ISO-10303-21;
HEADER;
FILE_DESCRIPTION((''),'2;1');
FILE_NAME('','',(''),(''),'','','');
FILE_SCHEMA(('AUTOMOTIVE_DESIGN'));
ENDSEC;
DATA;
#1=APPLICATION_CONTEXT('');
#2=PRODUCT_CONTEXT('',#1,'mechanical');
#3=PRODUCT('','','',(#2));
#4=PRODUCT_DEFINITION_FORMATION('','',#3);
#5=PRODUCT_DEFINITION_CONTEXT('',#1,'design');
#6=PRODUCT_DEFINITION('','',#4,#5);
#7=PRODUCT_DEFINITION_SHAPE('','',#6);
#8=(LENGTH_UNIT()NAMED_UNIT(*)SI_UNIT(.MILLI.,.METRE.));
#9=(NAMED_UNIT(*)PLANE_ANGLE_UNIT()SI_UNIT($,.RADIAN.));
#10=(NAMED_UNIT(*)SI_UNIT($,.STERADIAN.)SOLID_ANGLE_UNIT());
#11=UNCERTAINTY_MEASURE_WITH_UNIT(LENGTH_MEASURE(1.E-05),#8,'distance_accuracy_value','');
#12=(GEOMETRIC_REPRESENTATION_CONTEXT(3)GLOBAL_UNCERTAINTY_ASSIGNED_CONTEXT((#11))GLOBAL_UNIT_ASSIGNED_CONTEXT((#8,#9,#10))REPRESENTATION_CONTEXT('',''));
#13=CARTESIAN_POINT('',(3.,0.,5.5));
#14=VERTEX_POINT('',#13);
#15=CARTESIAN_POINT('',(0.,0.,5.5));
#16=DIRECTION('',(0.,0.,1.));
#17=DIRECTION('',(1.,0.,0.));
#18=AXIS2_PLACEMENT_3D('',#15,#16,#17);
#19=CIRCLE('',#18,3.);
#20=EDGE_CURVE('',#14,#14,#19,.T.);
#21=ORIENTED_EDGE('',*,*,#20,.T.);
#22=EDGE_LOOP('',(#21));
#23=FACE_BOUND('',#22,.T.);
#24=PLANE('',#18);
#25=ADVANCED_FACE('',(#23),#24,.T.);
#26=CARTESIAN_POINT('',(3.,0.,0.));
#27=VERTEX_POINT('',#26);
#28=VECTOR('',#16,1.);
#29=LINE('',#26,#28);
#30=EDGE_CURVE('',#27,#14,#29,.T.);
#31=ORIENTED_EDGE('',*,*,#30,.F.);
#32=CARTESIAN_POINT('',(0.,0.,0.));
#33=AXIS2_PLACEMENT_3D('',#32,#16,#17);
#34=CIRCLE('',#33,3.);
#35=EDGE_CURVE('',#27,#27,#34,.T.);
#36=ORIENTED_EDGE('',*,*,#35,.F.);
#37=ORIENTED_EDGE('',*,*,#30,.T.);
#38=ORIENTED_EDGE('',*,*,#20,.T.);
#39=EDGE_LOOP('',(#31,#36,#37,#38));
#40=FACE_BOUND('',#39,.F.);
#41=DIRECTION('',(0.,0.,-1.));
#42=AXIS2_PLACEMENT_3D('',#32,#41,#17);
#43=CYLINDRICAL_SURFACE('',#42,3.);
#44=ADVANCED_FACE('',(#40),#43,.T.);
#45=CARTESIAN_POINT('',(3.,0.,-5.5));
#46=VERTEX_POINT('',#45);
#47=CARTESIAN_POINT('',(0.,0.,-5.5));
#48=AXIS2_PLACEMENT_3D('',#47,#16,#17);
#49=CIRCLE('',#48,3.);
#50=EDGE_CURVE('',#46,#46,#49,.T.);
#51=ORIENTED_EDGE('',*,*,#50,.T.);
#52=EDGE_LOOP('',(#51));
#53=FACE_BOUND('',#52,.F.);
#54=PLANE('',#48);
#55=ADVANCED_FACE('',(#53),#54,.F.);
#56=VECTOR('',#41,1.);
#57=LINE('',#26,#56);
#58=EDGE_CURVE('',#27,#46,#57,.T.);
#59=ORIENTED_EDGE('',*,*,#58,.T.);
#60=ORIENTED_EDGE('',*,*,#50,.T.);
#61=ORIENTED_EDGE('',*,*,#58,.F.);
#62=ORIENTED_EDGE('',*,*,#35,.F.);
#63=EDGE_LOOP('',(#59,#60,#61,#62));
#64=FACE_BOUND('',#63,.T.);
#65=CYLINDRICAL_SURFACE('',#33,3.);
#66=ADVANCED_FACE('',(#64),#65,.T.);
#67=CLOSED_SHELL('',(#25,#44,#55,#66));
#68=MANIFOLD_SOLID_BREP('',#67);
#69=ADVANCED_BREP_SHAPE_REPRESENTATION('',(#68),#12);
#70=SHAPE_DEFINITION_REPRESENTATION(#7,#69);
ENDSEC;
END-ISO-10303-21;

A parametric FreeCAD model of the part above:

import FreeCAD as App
import Part
import Sketcher
Q = App.Units.Quantity

doc = App.newDocument("Part")
body = doc.addObject("PartDesign::Body", "Body")

# Sketch on XY plane
sketch1 = body.newObject("Sketcher::SketchObject", "Sketch")
sketch1.AttachmentSupport = (doc.getObject("XY_Plane"), [""])
sketch1.MapMode = "FlatFace"
sketch1.addGeometry(Part.Circle(App.Vector(0, 0, 0), App.Vector(0, 0, 1), 3), False)
sketch1.addConstraint([
    Sketcher.Constraint("Coincident", 0, 3, -1, 1),
    Sketcher.Constraint("Diameter", 0, Q("6 mm")),
])
pad1 = body.newObject("PartDesign::Pad", "Pad")
pad1.Profile = sketch1
pad1.Length = 11
pad1.Midplane = True

doc.recompute()
